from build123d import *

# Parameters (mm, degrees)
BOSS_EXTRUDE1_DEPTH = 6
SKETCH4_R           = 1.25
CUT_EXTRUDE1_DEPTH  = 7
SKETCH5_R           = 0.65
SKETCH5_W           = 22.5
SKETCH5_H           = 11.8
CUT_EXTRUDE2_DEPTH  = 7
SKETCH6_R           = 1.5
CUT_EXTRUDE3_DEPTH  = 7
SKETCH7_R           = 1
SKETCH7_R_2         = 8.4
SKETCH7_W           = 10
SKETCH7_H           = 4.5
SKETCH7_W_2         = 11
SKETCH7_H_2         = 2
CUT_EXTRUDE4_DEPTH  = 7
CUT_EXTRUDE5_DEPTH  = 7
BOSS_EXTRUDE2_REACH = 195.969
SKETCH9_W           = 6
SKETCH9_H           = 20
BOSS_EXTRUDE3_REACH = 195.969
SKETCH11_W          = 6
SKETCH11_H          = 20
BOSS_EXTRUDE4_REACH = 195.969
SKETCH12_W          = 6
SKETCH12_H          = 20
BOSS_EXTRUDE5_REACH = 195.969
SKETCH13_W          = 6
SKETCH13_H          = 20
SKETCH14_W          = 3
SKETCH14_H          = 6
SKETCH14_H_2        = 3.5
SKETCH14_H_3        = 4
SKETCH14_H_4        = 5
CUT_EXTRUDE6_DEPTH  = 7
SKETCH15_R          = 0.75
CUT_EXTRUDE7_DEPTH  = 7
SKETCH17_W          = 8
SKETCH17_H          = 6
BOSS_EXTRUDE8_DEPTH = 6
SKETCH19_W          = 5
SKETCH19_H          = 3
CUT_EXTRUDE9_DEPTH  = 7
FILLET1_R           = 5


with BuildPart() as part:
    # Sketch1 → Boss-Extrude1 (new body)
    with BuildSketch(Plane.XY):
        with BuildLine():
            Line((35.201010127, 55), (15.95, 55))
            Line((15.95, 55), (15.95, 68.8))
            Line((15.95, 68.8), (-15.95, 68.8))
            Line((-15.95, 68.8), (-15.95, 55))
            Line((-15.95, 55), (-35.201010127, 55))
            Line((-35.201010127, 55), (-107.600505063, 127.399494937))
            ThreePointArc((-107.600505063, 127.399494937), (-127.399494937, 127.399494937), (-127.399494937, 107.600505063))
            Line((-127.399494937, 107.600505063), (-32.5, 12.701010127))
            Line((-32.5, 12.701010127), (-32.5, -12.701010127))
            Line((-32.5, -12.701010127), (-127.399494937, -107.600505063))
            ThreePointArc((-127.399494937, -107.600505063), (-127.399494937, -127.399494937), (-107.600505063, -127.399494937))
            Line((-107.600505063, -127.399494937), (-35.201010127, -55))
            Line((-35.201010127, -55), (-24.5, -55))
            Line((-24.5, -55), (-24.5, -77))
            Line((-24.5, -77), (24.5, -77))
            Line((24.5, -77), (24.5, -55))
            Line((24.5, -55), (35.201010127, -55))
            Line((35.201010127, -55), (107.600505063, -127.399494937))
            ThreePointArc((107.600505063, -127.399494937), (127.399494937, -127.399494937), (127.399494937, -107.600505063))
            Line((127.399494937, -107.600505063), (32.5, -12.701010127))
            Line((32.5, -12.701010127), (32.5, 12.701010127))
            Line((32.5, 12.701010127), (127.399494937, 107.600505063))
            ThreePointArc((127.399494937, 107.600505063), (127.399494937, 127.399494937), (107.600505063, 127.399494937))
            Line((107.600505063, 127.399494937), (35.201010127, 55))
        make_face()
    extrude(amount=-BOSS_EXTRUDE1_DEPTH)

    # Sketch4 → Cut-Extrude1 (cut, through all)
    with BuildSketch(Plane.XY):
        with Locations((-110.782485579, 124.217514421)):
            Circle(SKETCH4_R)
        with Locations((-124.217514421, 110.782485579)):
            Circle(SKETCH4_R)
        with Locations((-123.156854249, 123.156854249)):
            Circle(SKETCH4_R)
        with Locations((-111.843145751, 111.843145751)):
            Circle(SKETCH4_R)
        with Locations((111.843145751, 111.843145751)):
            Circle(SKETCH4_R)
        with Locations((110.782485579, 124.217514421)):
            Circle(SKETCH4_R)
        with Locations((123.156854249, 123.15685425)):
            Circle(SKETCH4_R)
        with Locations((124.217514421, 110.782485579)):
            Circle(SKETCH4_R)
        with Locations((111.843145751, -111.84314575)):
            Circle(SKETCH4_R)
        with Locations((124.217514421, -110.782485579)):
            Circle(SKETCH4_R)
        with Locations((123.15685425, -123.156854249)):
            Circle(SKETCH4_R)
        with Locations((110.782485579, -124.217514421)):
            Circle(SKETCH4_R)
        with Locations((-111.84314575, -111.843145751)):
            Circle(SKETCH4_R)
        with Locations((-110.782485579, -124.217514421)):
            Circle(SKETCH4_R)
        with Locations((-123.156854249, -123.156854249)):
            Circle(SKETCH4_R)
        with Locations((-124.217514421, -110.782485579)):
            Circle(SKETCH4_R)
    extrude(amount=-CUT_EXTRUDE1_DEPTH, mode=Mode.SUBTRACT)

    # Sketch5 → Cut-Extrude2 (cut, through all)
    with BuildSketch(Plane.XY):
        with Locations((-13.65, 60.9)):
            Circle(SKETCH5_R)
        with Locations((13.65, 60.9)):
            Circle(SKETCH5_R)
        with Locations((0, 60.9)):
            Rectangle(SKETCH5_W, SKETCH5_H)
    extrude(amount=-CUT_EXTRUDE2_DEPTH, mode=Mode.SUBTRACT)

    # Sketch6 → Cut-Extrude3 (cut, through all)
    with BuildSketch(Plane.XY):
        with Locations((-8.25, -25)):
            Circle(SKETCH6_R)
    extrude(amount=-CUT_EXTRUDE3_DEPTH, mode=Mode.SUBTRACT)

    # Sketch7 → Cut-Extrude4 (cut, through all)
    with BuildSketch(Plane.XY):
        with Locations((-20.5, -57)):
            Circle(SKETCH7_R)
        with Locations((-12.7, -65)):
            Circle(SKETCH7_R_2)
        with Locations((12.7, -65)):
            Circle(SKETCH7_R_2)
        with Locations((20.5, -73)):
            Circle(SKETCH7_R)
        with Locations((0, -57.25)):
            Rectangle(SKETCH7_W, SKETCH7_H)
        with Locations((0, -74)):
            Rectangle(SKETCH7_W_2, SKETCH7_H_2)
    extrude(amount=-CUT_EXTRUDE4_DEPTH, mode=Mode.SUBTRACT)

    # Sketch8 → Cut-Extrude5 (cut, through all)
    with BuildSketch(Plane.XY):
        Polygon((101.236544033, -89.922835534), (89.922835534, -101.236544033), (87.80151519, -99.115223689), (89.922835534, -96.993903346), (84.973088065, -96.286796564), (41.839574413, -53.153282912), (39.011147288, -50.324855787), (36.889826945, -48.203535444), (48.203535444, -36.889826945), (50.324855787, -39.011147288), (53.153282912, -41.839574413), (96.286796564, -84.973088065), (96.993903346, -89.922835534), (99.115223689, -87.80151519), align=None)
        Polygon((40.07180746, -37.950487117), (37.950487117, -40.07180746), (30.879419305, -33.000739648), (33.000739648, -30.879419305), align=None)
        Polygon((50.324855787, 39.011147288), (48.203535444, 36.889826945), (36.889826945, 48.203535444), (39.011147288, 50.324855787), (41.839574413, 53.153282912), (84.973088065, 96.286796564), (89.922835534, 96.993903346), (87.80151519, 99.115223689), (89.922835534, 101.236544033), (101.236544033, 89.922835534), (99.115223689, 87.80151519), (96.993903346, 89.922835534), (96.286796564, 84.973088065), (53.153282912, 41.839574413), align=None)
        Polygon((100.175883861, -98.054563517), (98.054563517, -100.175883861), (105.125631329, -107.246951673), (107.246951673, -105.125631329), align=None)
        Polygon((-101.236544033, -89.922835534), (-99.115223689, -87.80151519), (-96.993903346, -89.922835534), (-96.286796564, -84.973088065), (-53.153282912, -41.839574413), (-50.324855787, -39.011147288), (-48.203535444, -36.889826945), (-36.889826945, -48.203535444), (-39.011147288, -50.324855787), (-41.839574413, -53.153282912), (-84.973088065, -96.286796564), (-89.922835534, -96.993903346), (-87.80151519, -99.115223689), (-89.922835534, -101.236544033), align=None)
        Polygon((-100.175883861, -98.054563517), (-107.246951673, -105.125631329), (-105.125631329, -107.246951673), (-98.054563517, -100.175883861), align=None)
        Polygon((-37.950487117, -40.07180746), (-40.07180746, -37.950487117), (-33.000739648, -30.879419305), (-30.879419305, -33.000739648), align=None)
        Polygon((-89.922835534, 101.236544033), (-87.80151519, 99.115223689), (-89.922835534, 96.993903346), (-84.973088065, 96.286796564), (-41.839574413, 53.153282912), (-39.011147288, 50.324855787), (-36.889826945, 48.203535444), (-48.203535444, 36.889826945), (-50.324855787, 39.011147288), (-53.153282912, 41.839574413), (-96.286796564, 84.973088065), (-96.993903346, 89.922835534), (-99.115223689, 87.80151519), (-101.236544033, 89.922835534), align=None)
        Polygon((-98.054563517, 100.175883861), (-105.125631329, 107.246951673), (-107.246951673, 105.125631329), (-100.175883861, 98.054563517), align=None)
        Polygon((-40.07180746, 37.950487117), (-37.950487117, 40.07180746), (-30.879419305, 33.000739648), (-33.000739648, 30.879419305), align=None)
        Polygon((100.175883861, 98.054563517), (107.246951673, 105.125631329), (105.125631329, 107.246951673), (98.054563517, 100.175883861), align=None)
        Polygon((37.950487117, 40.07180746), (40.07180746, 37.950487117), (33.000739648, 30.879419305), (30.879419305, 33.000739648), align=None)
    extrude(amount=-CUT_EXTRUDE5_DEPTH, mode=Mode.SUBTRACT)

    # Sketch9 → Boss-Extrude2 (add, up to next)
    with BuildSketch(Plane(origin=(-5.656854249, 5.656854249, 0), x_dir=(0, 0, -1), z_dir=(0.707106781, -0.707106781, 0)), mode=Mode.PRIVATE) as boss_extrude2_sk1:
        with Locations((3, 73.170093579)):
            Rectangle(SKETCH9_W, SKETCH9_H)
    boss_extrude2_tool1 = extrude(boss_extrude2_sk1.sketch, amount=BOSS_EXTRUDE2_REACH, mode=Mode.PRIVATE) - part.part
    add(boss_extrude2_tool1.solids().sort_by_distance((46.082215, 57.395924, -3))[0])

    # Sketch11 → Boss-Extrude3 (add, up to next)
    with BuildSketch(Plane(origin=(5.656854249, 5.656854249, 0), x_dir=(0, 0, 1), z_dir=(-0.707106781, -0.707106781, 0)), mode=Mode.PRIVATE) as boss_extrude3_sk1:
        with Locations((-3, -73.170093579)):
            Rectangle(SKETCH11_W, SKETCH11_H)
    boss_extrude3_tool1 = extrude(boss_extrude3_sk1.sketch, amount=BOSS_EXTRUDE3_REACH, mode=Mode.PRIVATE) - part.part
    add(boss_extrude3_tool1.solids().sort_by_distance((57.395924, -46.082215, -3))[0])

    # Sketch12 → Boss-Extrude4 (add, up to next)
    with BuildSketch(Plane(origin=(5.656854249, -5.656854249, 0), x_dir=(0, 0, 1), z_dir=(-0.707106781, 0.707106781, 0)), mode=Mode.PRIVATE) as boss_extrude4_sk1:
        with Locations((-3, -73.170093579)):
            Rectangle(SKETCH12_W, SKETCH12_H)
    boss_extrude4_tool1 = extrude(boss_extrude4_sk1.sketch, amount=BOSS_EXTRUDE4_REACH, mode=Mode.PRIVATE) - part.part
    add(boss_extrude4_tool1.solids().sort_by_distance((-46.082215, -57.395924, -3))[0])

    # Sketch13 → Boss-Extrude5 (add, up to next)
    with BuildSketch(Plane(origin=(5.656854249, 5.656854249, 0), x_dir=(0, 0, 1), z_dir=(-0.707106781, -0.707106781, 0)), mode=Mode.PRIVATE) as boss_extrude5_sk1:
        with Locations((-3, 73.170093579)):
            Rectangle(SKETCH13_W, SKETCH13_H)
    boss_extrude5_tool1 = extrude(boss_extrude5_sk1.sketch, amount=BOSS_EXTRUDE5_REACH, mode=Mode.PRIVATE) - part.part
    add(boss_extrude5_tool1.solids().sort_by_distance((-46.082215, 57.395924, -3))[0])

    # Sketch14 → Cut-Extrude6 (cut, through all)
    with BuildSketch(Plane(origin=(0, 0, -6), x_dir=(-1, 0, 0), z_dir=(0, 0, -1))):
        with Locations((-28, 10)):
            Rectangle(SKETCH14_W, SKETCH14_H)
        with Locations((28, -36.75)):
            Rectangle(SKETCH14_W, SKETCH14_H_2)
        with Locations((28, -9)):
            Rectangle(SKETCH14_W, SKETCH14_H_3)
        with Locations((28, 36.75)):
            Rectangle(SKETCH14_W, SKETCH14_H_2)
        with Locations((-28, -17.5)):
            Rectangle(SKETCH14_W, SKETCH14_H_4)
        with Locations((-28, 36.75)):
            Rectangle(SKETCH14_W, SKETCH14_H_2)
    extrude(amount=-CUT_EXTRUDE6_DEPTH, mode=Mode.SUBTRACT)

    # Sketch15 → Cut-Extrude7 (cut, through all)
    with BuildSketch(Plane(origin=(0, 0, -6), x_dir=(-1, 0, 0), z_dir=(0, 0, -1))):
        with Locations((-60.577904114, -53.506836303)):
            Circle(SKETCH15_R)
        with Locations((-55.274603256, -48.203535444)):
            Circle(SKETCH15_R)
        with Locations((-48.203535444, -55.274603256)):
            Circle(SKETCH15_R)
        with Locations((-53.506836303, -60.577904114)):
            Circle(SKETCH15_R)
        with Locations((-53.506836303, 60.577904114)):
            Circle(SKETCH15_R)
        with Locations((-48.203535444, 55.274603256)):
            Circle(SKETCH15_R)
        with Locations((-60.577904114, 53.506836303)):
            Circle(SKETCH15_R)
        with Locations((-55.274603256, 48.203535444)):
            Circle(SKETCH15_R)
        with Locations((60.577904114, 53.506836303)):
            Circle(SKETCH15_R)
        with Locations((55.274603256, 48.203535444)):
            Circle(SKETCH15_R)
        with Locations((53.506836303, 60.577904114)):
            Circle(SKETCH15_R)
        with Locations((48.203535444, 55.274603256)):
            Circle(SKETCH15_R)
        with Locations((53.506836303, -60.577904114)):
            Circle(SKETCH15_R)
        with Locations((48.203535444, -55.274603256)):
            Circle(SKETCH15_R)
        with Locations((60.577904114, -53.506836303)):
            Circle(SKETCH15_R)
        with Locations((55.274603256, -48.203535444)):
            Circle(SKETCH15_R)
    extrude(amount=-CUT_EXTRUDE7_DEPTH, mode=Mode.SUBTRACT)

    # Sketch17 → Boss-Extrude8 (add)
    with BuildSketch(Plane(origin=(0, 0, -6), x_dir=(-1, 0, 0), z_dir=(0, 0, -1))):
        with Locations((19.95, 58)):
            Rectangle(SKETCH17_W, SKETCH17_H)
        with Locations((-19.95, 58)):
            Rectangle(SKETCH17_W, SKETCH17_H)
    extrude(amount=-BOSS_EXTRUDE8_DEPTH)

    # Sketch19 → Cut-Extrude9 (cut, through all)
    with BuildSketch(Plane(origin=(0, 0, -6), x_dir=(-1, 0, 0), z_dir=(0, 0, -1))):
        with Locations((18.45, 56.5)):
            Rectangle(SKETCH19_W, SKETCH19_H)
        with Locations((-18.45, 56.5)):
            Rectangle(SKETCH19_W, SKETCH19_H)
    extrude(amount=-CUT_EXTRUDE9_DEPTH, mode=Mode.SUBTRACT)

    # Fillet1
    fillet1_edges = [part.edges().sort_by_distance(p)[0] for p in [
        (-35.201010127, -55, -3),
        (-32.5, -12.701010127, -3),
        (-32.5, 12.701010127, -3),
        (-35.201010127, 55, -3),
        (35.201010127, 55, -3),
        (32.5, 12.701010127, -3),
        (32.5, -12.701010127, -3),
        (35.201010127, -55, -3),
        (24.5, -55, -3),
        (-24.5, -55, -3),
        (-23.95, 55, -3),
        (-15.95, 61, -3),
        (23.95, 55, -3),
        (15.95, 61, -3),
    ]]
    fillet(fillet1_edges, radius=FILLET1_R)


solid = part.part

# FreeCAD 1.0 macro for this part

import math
import FreeCAD as App
import Part
import Sketcher

V = App.Vector
Q = App.Units.Quantity


def edges_at(feature, points):
    """Names of the edges that pass closest to the given points."""
    edges = feature.Shape.Edges
    near = lambda p: min(range(len(edges)), key=lambda i: edges[i].distToShape(Part.Vertex(*p))[0])
    return sorted({f"Edge{near(p) + 1}" for p in points})


def add_polygon(sketch, points):
    """Adds a closed chain of lines whose ends are joined by coincident constraints."""
    first, n = sketch.GeometryCount, len(points)
    for a, b in zip(points, points[1:] + points[:1]):
        sketch.addGeometry(Part.LineSegment(App.Vector(*a, 0), App.Vector(*b, 0)), False)
    for i in range(n):
        sketch.addConstraint(Sketcher.Constraint("Coincident", first + i, 2, first + (i + 1) % n, 1))

doc = App.newDocument("Part")
body = doc.addObject("PartDesign::Body", "Body")

# Sketch on XY plane
sketch1 = body.newObject("Sketcher::SketchObject", "Sketch")
sketch1.AttachmentSupport = (doc.getObject("XY_Plane"), [""])
sketch1.MapMode = "FlatFace"
sketch1.addGeometry([
    Part.LineSegment(V(35, 55, 0), V(16, 55, 0)),  # 0
    Part.LineSegment(V(16, 55, 0), V(16, 69, 0)),  # 1
    Part.LineSegment(V(16, 69, 0), V(-16, 69, 0)),  # 2
    Part.LineSegment(V(-16, 69, 0), V(-16, 55, 0)),  # 3
    Part.LineSegment(V(-16, 55, 0), V(-35, 55, 0)),  # 4
    Part.LineSegment(V(-35, 55, 0), V(-108, 127, 0)),  # 5
    Part.ArcOfCircle(Part.Circle(V(-118, 118, 0), V(0, 0, 1), 14), math.radians(45), math.radians(225)),  # 6
    Part.LineSegment(V(-127, 108, 0), V(-32, 13, 0)),  # 7
    Part.LineSegment(V(-32, 13, 0), V(-32, -13, 0)),  # 8
    Part.LineSegment(V(-32, -13, 0), V(-127, -108, 0)),  # 9
    Part.ArcOfCircle(Part.Circle(V(-118, -118, 0), V(0, 0, 1), 14), math.radians(135), math.radians(315)),  # 10
    Part.LineSegment(V(-108, -127, 0), V(-35, -55, 0)),  # 11
    Part.LineSegment(V(-35, -55, 0), V(-24, -55, 0)),  # 12
    Part.LineSegment(V(-24, -55, 0), V(-24, -77, 0)),  # 13
    Part.LineSegment(V(-24, -77, 0), V(24, -77, 0)),  # 14
    Part.LineSegment(V(24, -77, 0), V(24, -55, 0)),  # 15
    Part.LineSegment(V(24, -55, 0), V(35, -55, 0)),  # 16
    Part.LineSegment(V(35, -55, 0), V(108, -127, 0)),  # 17
    Part.ArcOfCircle(Part.Circle(V(118, -118, 0), V(0, 0, 1), 14), math.radians(-135), math.radians(45)),  # 18
    Part.LineSegment(V(127, -108, 0), V(32, -13, 0)),  # 19
    Part.LineSegment(V(32, -13, 0), V(32, 13, 0)),  # 20
    Part.LineSegment(V(32, 13, 0), V(127, 108, 0)),  # 21
    Part.ArcOfCircle(Part.Circle(V(118, 118, 0), V(0, 0, 1), 14), math.radians(-45), math.radians(135)),  # 22
    Part.LineSegment(V(108, 127, 0), V(35, 55, 0)),  # 23
], False)
sketch1.addConstraint([
    Sketcher.Constraint("Coincident", 0, 2, 1, 1),
    Sketcher.Constraint("Coincident", 1, 2, 2, 1),
    Sketcher.Constraint("Coincident", 2, 2, 3, 1),
    Sketcher.Constraint("Coincident", 3, 2, 4, 1),
    Sketcher.Constraint("Coincident", 4, 2, 5, 1),
    Sketcher.Constraint("Tangent", 5, 2, 6, 1),
    Sketcher.Constraint("Tangent", 6, 2, 7, 1),
    Sketcher.Constraint("Coincident", 7, 2, 8, 1),
    Sketcher.Constraint("Coincident", 8, 2, 9, 1),
    Sketcher.Constraint("Tangent", 9, 2, 10, 1),
    Sketcher.Constraint("Tangent", 10, 2, 11, 1),
    Sketcher.Constraint("Coincident", 11, 2, 12, 1),
    Sketcher.Constraint("Coincident", 12, 2, 13, 1),
    Sketcher.Constraint("Coincident", 13, 2, 14, 1),
    Sketcher.Constraint("Coincident", 14, 2, 15, 1),
    Sketcher.Constraint("Coincident", 15, 2, 16, 1),
    Sketcher.Constraint("Coincident", 16, 2, 17, 1),
    Sketcher.Constraint("Tangent", 17, 2, 18, 1),
    Sketcher.Constraint("Tangent", 18, 2, 19, 1),
    Sketcher.Constraint("Coincident", 19, 2, 20, 1),
    Sketcher.Constraint("Coincident", 20, 2, 21, 1),
    Sketcher.Constraint("Tangent", 21, 2, 22, 1),
    Sketcher.Constraint("Tangent", 22, 2, 23, 1),
    Sketcher.Constraint("Coincident", 23, 2, 0, 1),
    Sketcher.Constraint("Horizontal", 0),
    Sketcher.Constraint("Vertical", 1),
    Sketcher.Constraint("Horizontal", 2),
    Sketcher.Constraint("Vertical", 3),
    Sketcher.Constraint("Horizontal", 4),
    Sketcher.Constraint("Vertical", 8),
    Sketcher.Constraint("Horizontal", 12),
    Sketcher.Constraint("Vertical", 13),
    Sketcher.Constraint("Horizontal", 14),
    Sketcher.Constraint("Vertical", 15),
    Sketcher.Constraint("Horizontal", 16),
    Sketcher.Constraint("Vertical", 20),
    Sketcher.Constraint("Equal", 6, 10),
    Sketcher.Constraint("Equal", 10, 18),
    Sketcher.Constraint("Equal", 18, 22),
    Sketcher.Constraint("Symmetric", 6, 3, 18, 3, -1, 1),
    Sketcher.Constraint("Symmetric", 10, 3, 22, 3, -1, 1),
    Sketcher.Constraint("Symmetric", 4, 2, 16, 2, -1, 1),
    Sketcher.Constraint("Symmetric", 7, 2, 19, 2, -1, 1),
    Sketcher.Constraint("Symmetric", 11, 2, 23, 2, -1, 1),
    Sketcher.Constraint("Symmetric", 10, 3, 18, 3, -2),
    Sketcher.Constraint("Symmetric", 0, 2, 3, 2, -2),
    Sketcher.Constraint("Parallel", 5, 7),
    Sketcher.Constraint("Perpendicular", 7, 9),
    Sketcher.Constraint("Parallel", 9, 11),
    Sketcher.Constraint("Perpendicular", 19, 21),
    Sketcher.Constraint("Horizontal", 10, 2, 17, 2),
    Sketcher.Constraint("Equal", 12, 16),
    Sketcher.Constraint("Radius", 6, Q("14 mm")),
    Sketcher.Constraint("DistanceX", 14, 1, 14, 2, Q("49 mm")),
    Sketcher.Constraint("DistanceY", 13, 2, 13, 1, Q("22 mm")),
    Sketcher.Constraint("DistanceX", 2, 2, 2, 1, Q("31.9 mm")),
    Sketcher.Constraint("DistanceY", 1, 1, 1, 2, Q("13.8 mm")),
    Sketcher.Constraint("DistanceY", -1, 1, 0, 2, Q("55 mm")),
    Sketcher.Constraint("DistanceY", 10, 3, 6, 3, Q("235 mm")),
    Sketcher.Constraint("DistanceX", 10, 3, 18, 3, Q("235 mm")),
    Sketcher.Constraint("DistanceX", 8, 2, 12, 2, Q("8 mm")),
])
pad1 = body.newObject("PartDesign::Pad", "Pad")
pad1.Profile = sketch1
pad1.Length = 6
pad1.Reversed = True

# Sketch on XY plane
sketch2 = body.newObject("Sketcher::SketchObject", "Sketch001")
sketch2.AttachmentSupport = (doc.getObject("XY_Plane"), [""])
sketch2.MapMode = "FlatFace"
sketch2.addGeometry([
    Part.Circle(V(-110.8, 124.2, 0), V(0, 0, 1), 1.2),  # 0
    Part.Circle(V(-124.2, 110.8, 0), V(0, 0, 1), 1.2),  # 1
    Part.Circle(V(-123.2, 123.2, 0), V(0, 0, 1), 1.2),  # 2
    Part.Circle(V(-111.8, 111.8, 0), V(0, 0, 1), 1.2),  # 3
    Part.Circle(V(111.8, 111.8, 0), V(0, 0, 1), 1.2),  # 4
    Part.Circle(V(110.8, 124.2, 0), V(0, 0, 1), 1.2),  # 5
    Part.Circle(V(123.2, 123.2, 0), V(0, 0, 1), 1.2),  # 6
    Part.Circle(V(124.2, 110.8, 0), V(0, 0, 1), 1.2),  # 7
    Part.Circle(V(111.8, -111.8, 0), V(0, 0, 1), 1.2),  # 8
    Part.Circle(V(124.2, -110.8, 0), V(0, 0, 1), 1.2),  # 9
    Part.Circle(V(123.2, -123.2, 0), V(0, 0, 1), 1.2),  # 10
    Part.Circle(V(110.8, -124.2, 0), V(0, 0, 1), 1.2),  # 11
    Part.Circle(V(-111.8, -111.8, 0), V(0, 0, 1), 1.2),  # 12
    Part.Circle(V(-110.8, -124.2, 0), V(0, 0, 1), 1.2),  # 13
    Part.Circle(V(-123.2, -123.2, 0), V(0, 0, 1), 1.2),  # 14
    Part.Circle(V(-124.2, -110.8, 0), V(0, 0, 1), 1.2),  # 15
], False)
sketch2.addConstraint([
    Sketcher.Constraint("Equal", 0, 1),
    Sketcher.Constraint("Equal", 1, 2),
    Sketcher.Constraint("Equal", 2, 3),
    Sketcher.Constraint("Equal", 3, 4),
    Sketcher.Constraint("Equal", 4, 5),
    Sketcher.Constraint("Equal", 5, 6),
    Sketcher.Constraint("Equal", 6, 7),
    Sketcher.Constraint("Equal", 7, 8),
    Sketcher.Constraint("Equal", 8, 9),
    Sketcher.Constraint("Equal", 9, 10),
    Sketcher.Constraint("Equal", 10, 11),
    Sketcher.Constraint("Equal", 11, 12),
    Sketcher.Constraint("Equal", 12, 13),
    Sketcher.Constraint("Equal", 13, 14),
    Sketcher.Constraint("Equal", 14, 15),
    Sketcher.Constraint("Symmetric", 3, 3, 8, 3, -1, 1),
    Sketcher.Constraint("Symmetric", 1, 3, 9, 3, -1, 1),
    Sketcher.Constraint("Symmetric", 2, 3, 10, 3, -1, 1),
    Sketcher.Constraint("Symmetric", 0, 3, 11, 3, -1, 1),
    Sketcher.Constraint("Symmetric", 4, 3, 12, 3, -1, 1),
    Sketcher.Constraint("Symmetric", 5, 3, 13, 3, -1, 1),
    Sketcher.Constraint("Symmetric", 6, 3, 14, 3, -1, 1),
    Sketcher.Constraint("Symmetric", 7, 3, 15, 3, -1, 1),
    Sketcher.Constraint("Symmetric", 3, 3, 4, 3, -2),
    Sketcher.Constraint("Symmetric", 0, 3, 5, 3, -2),
    Sketcher.Constraint("Symmetric", 2, 3, 6, 3, -2),
    Sketcher.Constraint("Symmetric", 1, 3, 7, 3, -2),
    Sketcher.Constraint("Diameter", 0, Q("2.5 mm")),
    Sketcher.Constraint("DistanceX", 2, 3, 4, 3, Q("235 mm")),
    Sketcher.Constraint("DistanceX", 1, 3, 5, 3, Q("235 mm")),
    Sketcher.Constraint("DistanceY", 8, 3, 6, 3, Q("235 mm")),
    Sketcher.Constraint("DistanceY", 9, 3, 5, 3, Q("235 mm")),
    Sketcher.Constraint("DistanceX", 1, 3, 0, 3, Q("13.435029 mm")),
    Sketcher.Constraint("DistanceY", 1, 3, 0, 3, Q("13.435029 mm")),
    Sketcher.Constraint("DistanceX", 2, 3, 0, 3, Q("12.374369 mm")),
    Sketcher.Constraint("DistanceY", 2, 3, 0, 3, Q("1.06066 mm")),
])
pocket1 = body.newObject("PartDesign::Pocket", "Pocket")
pocket1.Profile = sketch2
pocket1.Type = "ThroughAll"

# Sketch on XY plane
sketch3 = body.newObject("Sketcher::SketchObject", "Sketch002")
sketch3.AttachmentSupport = (doc.getObject("XY_Plane"), [""])
sketch3.MapMode = "FlatFace"
sketch3.addGeometry(Part.Circle(V(-13.7, 60.9, 0), V(0, 0, 1), 0.7), False)  # 0
sketch3.addGeometry(Part.Circle(V(13.7, 60.9, 0), V(0, 0, 1), 0.7), False)  # 1
add_polygon(sketch3, [(-11.2, 66.8), (-11.2, 55), (11.2, 55), (11.2, 66.8)])  # lines 2-5
sketch3.addConstraint([
    Sketcher.Constraint("Vertical", 2),
    Sketcher.Constraint("Horizontal", 3),
    Sketcher.Constraint("Vertical", 4),
    Sketcher.Constraint("Horizontal", 5),
    Sketcher.Constraint("Equal", 0, 1),
    Sketcher.Constraint("Symmetric", 0, 3, 1, 3, -2),
    Sketcher.Constraint("Diameter", 0, Q("1.3 mm")),
    Sketcher.Constraint("DistanceX", 3, 1, 3, 2, Q("22.5 mm")),
    Sketcher.Constraint("DistanceY", 2, 2, 2, 1, Q("11.8 mm")),
    Sketcher.Constraint("DistanceY", -1, 1, 2, 2, Q("55 mm")),
    Sketcher.Constraint("DistanceY", -1, 1, 0, 3, Q("60.9 mm")),
    Sketcher.Constraint("DistanceX", 0, 3, 1, 3, Q("27.3 mm")),
    Sketcher.Constraint("DistanceX", 0, 3, 2, 2, Q("2.4 mm")),
])
pocket2 = body.newObject("PartDesign::Pocket", "Pocket001")
pocket2.Profile = sketch3
pocket2.Type = "ThroughAll"

# Sketch on XY plane
sketch4 = body.newObject("Sketcher::SketchObject", "Sketch003")
sketch4.AttachmentSupport = (doc.getObject("XY_Plane"), [""])
sketch4.MapMode = "FlatFace"
sketch4.addGeometry(Part.Circle(V(-8.2, -25, 0), V(0, 0, 1), 1.5), False)
sketch4.addConstraint([
    Sketcher.Constraint("Diameter", 0, Q("3 mm")),
    Sketcher.Constraint("DistanceY", 0, 3, -1, 1, Q("25 mm")),
    Sketcher.Constraint("DistanceX", 0, 3, -1, 1, Q("8.25 mm")),
])
pocket3 = body.newObject("PartDesign::Pocket", "Pocket002")
pocket3.Profile = sketch4
pocket3.Type = "ThroughAll"

# Sketch on XY plane
sketch5 = body.newObject("Sketcher::SketchObject", "Sketch004")
sketch5.AttachmentSupport = (doc.getObject("XY_Plane"), [""])
sketch5.MapMode = "FlatFace"
sketch5.addGeometry(Part.Circle(V(-20.5, -57, 0), V(0, 0, 1), 1), False)  # 0
sketch5.addGeometry(Part.Circle(V(-12.7, -65, 0), V(0, 0, 1), 8.4), False)  # 1
sketch5.addGeometry(Part.Circle(V(12.7, -65, 0), V(0, 0, 1), 8.4), False)  # 2
sketch5.addGeometry(Part.Circle(V(20.5, -73, 0), V(0, 0, 1), 1), False)  # 3
add_polygon(sketch5, [(-5, -55), (-5, -59.5), (5, -59.5), (5, -55)])  # lines 4-7
add_polygon(sketch5, [(-5.5, -73), (-5.5, -75), (5.5, -75), (5.5, -73)])  # lines 8-11
sketch5.addConstraint([
    Sketcher.Constraint("Vertical", 4),
    Sketcher.Constraint("Horizontal", 5),
    Sketcher.Constraint("Vertical", 6),
    Sketcher.Constraint("Horizontal", 7),
    Sketcher.Constraint("Vertical", 8),
    Sketcher.Constraint("Horizontal", 9),
    Sketcher.Constraint("Vertical", 10),
    Sketcher.Constraint("Horizontal", 11),
    Sketcher.Constraint("Equal", 1, 2),
    Sketcher.Constraint("Equal", 0, 3),
    Sketcher.Constraint("Symmetric", 1, 3, 2, 3, -2),
    Sketcher.Constraint("Horizontal", 3, 3, 10, 2),
    Sketcher.Constraint("Diameter", 0, Q("2 mm")),
    Sketcher.Constraint("Diameter", 1, Q("16.8 mm")),
    Sketcher.Constraint("DistanceX", 5, 1, 5, 2, Q("10 mm")),
    Sketcher.Constraint("DistanceX", 9, 1, 9, 2, Q("11 mm")),
    Sketcher.Constraint("DistanceY", 8, 2, 8, 1, Q("2 mm")),
    Sketcher.Constraint("DistanceY", 4, 2, 4, 1, Q("4.5 mm")),
    Sketcher.Constraint("DistanceY", 0, 3, -1, 1, Q("57 mm")),
    Sketcher.Constraint("DistanceY", 1, 3, -1, 1, Q("65 mm")),
    Sketcher.Constraint("DistanceY", 3, 3, -1, 1, Q("73 mm")),
    Sketcher.Constraint("DistanceX", 4, 2, -1, 1, Q("5 mm")),
    Sketcher.Constraint("DistanceY", 6, 2, -1, 1, Q("55 mm")),
    Sketcher.Constraint("DistanceX", 0, 3, 3, 3, Q("41 mm")),
    Sketcher.Constraint("DistanceX", 9, 2, 3, 3, Q("15 mm")),
    Sketcher.Constraint("DistanceX", 0, 3, -1, 1, Q("20.5 mm")),
    Sketcher.Constraint("DistanceX", 1, 3, -1, 1, Q("12.7 mm")),
])
pocket4 = body.newObject("PartDesign::Pocket", "Pocket003")
pocket4.Profile = sketch5
pocket4.Type = "ThroughAll"

# Sketch on XY plane
sketch6 = body.newObject("Sketcher::SketchObject", "Sketch005")
sketch6.AttachmentSupport = (doc.getObject("XY_Plane"), [""])
sketch6.MapMode = "FlatFace"
add_polygon(sketch6, [(89.9, -101.2), (101.2, -89.9), (99.1, -87.8), (97, -89.9), (96.3, -85), (48.2, -36.9), (36.9, -48.2), (85, -96.3), (89.9, -97), (87.8, -99.1)])  # lines 0-9
add_polygon(sketch6, [(38, -40.1), (40.1, -38), (33, -30.9), (30.9, -33)])  # lines 10-13
add_polygon(sketch6, [(48.2, 36.9), (96.3, 85), (97, 89.9), (99.1, 87.8), (101.2, 89.9), (89.9, 101.2), (87.8, 99.1), (89.9, 97), (85, 96.3), (36.9, 48.2)])  # lines 14-23
add_polygon(sketch6, [(100.2, -98.1), (98.1, -100.2), (105.1, -107.2), (107.2, -105.1)])  # lines 24-27
add_polygon(sketch6, [(-99.1, -87.8), (-101.2, -89.9), (-89.9, -101.2), (-87.8, -99.1), (-89.9, -97), (-85, -96.3), (-36.9, -48.2), (-48.2, -36.9), (-96.3, -85), (-97, -89.9)])  # lines 28-37
add_polygon(sketch6, [(-100.2, -98.1), (-107.2, -105.1), (-105.1, -107.2), (-98.1, -100.2)])  # lines 38-41
add_polygon(sketch6, [(-40.1, -38), (-38, -40.1), (-30.9, -33), (-33, -30.9)])  # lines 42-45
add_polygon(sketch6, [(-87.8, 99.1), (-89.9, 101.2), (-101.2, 89.9), (-99.1, 87.8), (-97, 89.9), (-96.3, 85), (-48.2, 36.9), (-36.9, 48.2), (-85, 96.3), (-89.9, 97)])  # lines 46-55
add_polygon(sketch6, [(-98.1, 100.2), (-105.1, 107.2), (-107.2, 105.1), (-100.2, 98.1)])  # lines 56-59
add_polygon(sketch6, [(-38, 40.1), (-40.1, 38), (-33, 30.9), (-30.9, 33)])  # lines 60-63
add_polygon(sketch6, [(100.2, 98.1), (107.2, 105.1), (105.1, 107.2), (98.1, 100.2)])  # lines 64-67
add_polygon(sketch6, [(40.1, 38), (38, 40.1), (30.9, 33), (33, 30.9)])  # lines 68-71
sketch6.addConstraint([
    Sketcher.Constraint("Symmetric", 17, 2, 28, 2, -1, 1),
    Sketcher.Constraint("Symmetric", 18, 2, 29, 2, -1, 1),
    Sketcher.Constraint("Symmetric", 19, 2, 30, 2, -1, 1),
    Sketcher.Constraint("Symmetric", 20, 2, 31, 2, -1, 1),
    Sketcher.Constraint("Symmetric", 21, 2, 32, 2, -1, 1),
    Sketcher.Constraint("Symmetric", 22, 2, 33, 2, -1, 1),
    Sketcher.Constraint("Symmetric", 23, 2, 34, 2, -1, 1),
    Sketcher.Constraint("Symmetric", 14, 2, 35, 2, -1, 1),
    Sketcher.Constraint("Symmetric", 15, 2, 36, 2, -1, 1),
    Sketcher.Constraint("Symmetric", 16, 2, 37, 2, -1, 1),
    Sketcher.Constraint("Symmetric", 9, 2, 46, 2, -1, 1),
    Sketcher.Constraint("Symmetric", 0, 2, 47, 2, -1, 1),
    Sketcher.Constraint("Symmetric", 1, 2, 48, 2, -1, 1),
    Sketcher.Constraint("Symmetric", 2, 2, 49, 2, -1, 1),
    Sketcher.Constraint("Symmetric", 3, 2, 50, 2, -1, 1),
    Sketcher.Constraint("Symmetric", 4, 2, 51, 2, -1, 1),
    Sketcher.Constraint("Symmetric", 5, 2, 52, 2, -1, 1),
    Sketcher.Constraint("Symmetric", 6, 2, 53, 2, -1, 1),
    Sketcher.Constraint("Symmetric", 7, 2, 54, 2, -1, 1),
    Sketcher.Constraint("Symmetric", 8, 2, 55, 2, -1, 1),
    Sketcher.Constraint("Symmetric", 25, 2, 56, 2, -1, 1),
    Sketcher.Constraint("Symmetric", 26, 2, 57, 2, -1, 1),
    Sketcher.Constraint("Symmetric", 27, 2, 58, 2, -1, 1),
    Sketcher.Constraint("Symmetric", 24, 2, 59, 2, -1, 1),
    Sketcher.Constraint("Symmetric", 10, 2, 60, 2, -1, 1),
    Sketcher.Constraint("Symmetric", 11, 2, 61, 2, -1, 1),
    Sketcher.Constraint("Symmetric", 12, 2, 62, 2, -1, 1),
    Sketcher.Constraint("Symmetric", 13, 2, 63, 2, -1, 1),
    Sketcher.Constraint("Symmetric", 38, 2, 64, 2, -1, 1),
    Sketcher.Constraint("Symmetric", 39, 2, 65, 2, -1, 1),
    Sketcher.Constraint("Symmetric", 40, 2, 66, 2, -1, 1),
    Sketcher.Constraint("Symmetric", 41, 2, 67, 2, -1, 1),
    Sketcher.Constraint("Symmetric", 42, 2, 68, 2, -1, 1),
    Sketcher.Constraint("Symmetric", 43, 2, 69, 2, -1, 1),
    Sketcher.Constraint("Symmetric", 44, 2, 70, 2, -1, 1),
    Sketcher.Constraint("Symmetric", 45, 2, 71, 2, -1, 1),
    Sketcher.Constraint("Symmetric", 0, 2, 28, 2, -2),
    Sketcher.Constraint("Symmetric", 9, 2, 29, 2, -2),
    Sketcher.Constraint("Symmetric", 8, 2, 30, 2, -2),
    Sketcher.Constraint("Symmetric", 7, 2, 31, 2, -2),
    Sketcher.Constraint("Symmetric", 6, 2, 32, 2, -2),
    Sketcher.Constraint("Symmetric", 5, 2, 33, 2, -2),
    Sketcher.Constraint("Symmetric", 4, 2, 34, 2, -2),
    Sketcher.Constraint("Symmetric", 3, 2, 35, 2, -2),
    Sketcher.Constraint("Symmetric", 2, 2, 36, 2, -2),
    Sketcher.Constraint("Symmetric", 1, 2, 37, 2, -2),
    Sketcher.Constraint("Symmetric", 26, 2, 38, 2, -2),
    Sketcher.Constraint("Symmetric", 25, 2, 39, 2, -2),
    Sketcher.Constraint("Symmetric", 24, 2, 40, 2, -2),
    Sketcher.Constraint("Symmetric", 27, 2, 41, 2, -2),
    Sketcher.Constraint("Symmetric", 13, 2, 42, 2, -2),
    Sketcher.Constraint("Symmetric", 12, 2, 43, 2, -2),
    Sketcher.Constraint("Symmetric", 11, 2, 44, 2, -2),
    Sketcher.Constraint("Symmetric", 10, 2, 45, 2, -2),
    Sketcher.Constraint("Perpendicular", 0, 1),
    Sketcher.Constraint("Perpendicular", 1, 2),
    Sketcher.Constraint("Perpendicular", 2, 4),
    Sketcher.Constraint("Perpendicular", 4, 5),
    Sketcher.Constraint("Perpendicular", 5, 6),
    Sketcher.Constraint("Perpendicular", 6, 8),
    Sketcher.Constraint("Perpendicular", 8, 9),
    Sketcher.Constraint("Perpendicular", 9, 10),
    Sketcher.Constraint("Perpendicular", 10, 11),
    Sketcher.Constraint("Perpendicular", 11, 12),
    Sketcher.Constraint("Perpendicular", 12, 13),
    Sketcher.Constraint("Perpendicular", 13, 14),
    Sketcher.Constraint("Perpendicular", 7, 15),
    Sketcher.Constraint("Perpendicular", 23, 24),
    Sketcher.Constraint("Perpendicular", 24, 25),
    Sketcher.Constraint("Perpendicular", 25, 26),
    Sketcher.Constraint("Perpendicular", 26, 27),
    Sketcher.Constraint("Horizontal", 0, 2, 2, 2),
    Sketcher.Constraint("Vertical", 7, 2, 9, 2),
    Sketcher.Constraint("Equal", 0, 5),
    Sketcher.Constraint("Equal", 4, 6),
    Sketcher.Constraint("Equal", 3, 7),
    Sketcher.Constraint("Equal", 9, 10),
    Sketcher.Constraint("Equal", 20, 24),
    Sketcher.Constraint("Equal", 13, 25),
    Sketcher.Constraint("Distance", 0, Q("16 mm")),
    Sketcher.Constraint("Distance", 1, Q("3 mm")),
    Sketcher.Constraint("Distance", 3, Q("5 mm")),
    Sketcher.Constraint("Distance", 4, Q("68 mm")),
    Sketcher.Constraint("Distance", 11, Q("10 mm")),
    Sketcher.Constraint("DistanceY", 3, 2, -1, 1, Q("84.973088 mm")),
    Sketcher.Constraint("DistanceX", -1, 1, 6, 2, Q("84.973088 mm")),
    Sketcher.Constraint("DistanceX", -1, 1, 11, 2, Q("33.00074 mm")),
    Sketcher.Constraint("DistanceY", 11, 2, -1, 1, Q("30.879419 mm")),
    Sketcher.Constraint("DistanceX", -1, 1, 25, 2, Q("105.125631 mm")),
    Sketcher.Constraint("DistanceY", 25, 2, -1, 1, Q("107.246952 mm")),
])
pocket5 = body.newObject("PartDesign::Pocket", "Pocket004")
pocket5.Profile = sketch6
pocket5.Type = "ThroughAll"

# Sketch on an angled plane
sketch7 = body.newObject("Sketcher::SketchObject", "Sketch006")
sketch7.Placement = App.Placement(V(-5.656854, 5.656854, 0), App.Rotation(V(0, 0, -1), V(0.707106781, 0.707106781, 0), V(0.707106781, -0.707106781, 0), "ZXY"))
add_polygon(sketch7, [(0, 83), (0, 63), (6, 63), (6, 83)])  # lines 0-3
sketch7.addConstraint([
    Sketcher.Constraint("Vertical", 0),
    Sketcher.Constraint("Horizontal", 1),
    Sketcher.Constraint("Vertical", 2),
    Sketcher.Constraint("Horizontal", 3),
    Sketcher.Constraint("PointOnObject", 0, 2, -2),
    Sketcher.Constraint("DistanceX", 1, 1, 1, 2, Q("6 mm")),
    Sketcher.Constraint("DistanceY", 0, 2, 0, 1, Q("20 mm")),
    Sketcher.Constraint("DistanceY", -1, 1, 0, 2, Q("63.170094 mm")),
])
pad2 = body.newObject("PartDesign::Pad", "Pad001")
pad2.Profile = sketch7
pad2.Type = "UpToFirst"

# Sketch on an angled plane
sketch8 = body.newObject("Sketcher::SketchObject", "Sketch007")
sketch8.Placement = App.Placement(V(5.656854, 5.656854, 0), App.Rotation(V(0, 0, 1), V(-0.707106781, 0.707106781, 0), V(-0.707106781, -0.707106781, 0), "ZXY"))
add_polygon(sketch8, [(-6, -63), (-6, -83), (0, -83), (0, -63)])  # lines 0-3
sketch8.addConstraint([
    Sketcher.Constraint("Vertical", 0),
    Sketcher.Constraint("Horizontal", 1),
    Sketcher.Constraint("Vertical", 2),
    Sketcher.Constraint("Horizontal", 3),
    Sketcher.Constraint("PointOnObject", 1, 2, -2),
    Sketcher.Constraint("DistanceX", 1, 1, 1, 2, Q("6 mm")),
    Sketcher.Constraint("DistanceY", 0, 2, 0, 1, Q("20 mm")),
    Sketcher.Constraint("DistanceY", 0, 2, -1, 1, Q("83.170094 mm")),
])
pad3 = body.newObject("PartDesign::Pad", "Pad002")
pad3.Profile = sketch8
pad3.Type = "UpToFirst"

# Sketch on an angled plane
sketch9 = body.newObject("Sketcher::SketchObject", "Sketch008")
sketch9.Placement = App.Placement(V(5.656854, -5.656854, 0), App.Rotation(V(0, 0, 1), V(0.707106781, 0.707106781, 0), V(-0.707106781, 0.707106781, 0), "ZXY"))
add_polygon(sketch9, [(-6, -63), (-6, -83), (0, -83), (0, -63)])  # lines 0-3
sketch9.addConstraint([
    Sketcher.Constraint("Vertical", 0),
    Sketcher.Constraint("Horizontal", 1),
    Sketcher.Constraint("Vertical", 2),
    Sketcher.Constraint("Horizontal", 3),
    Sketcher.Constraint("PointOnObject", 1, 2, -2),
    Sketcher.Constraint("DistanceX", 1, 1, 1, 2, Q("6 mm")),
    Sketcher.Constraint("DistanceY", 0, 2, 0, 1, Q("20 mm")),
    Sketcher.Constraint("DistanceY", 0, 2, -1, 1, Q("83.170094 mm")),
])
pad4 = body.newObject("PartDesign::Pad", "Pad003")
pad4.Profile = sketch9
pad4.Type = "UpToFirst"

# Sketch on an angled plane
sketch10 = body.newObject("Sketcher::SketchObject", "Sketch009")
sketch10.Placement = App.Placement(V(5.656854, 5.656854, 0), App.Rotation(V(0, 0, 1), V(-0.707106781, 0.707106781, 0), V(-0.707106781, -0.707106781, 0), "ZXY"))
add_polygon(sketch10, [(-6, 83), (-6, 63), (0, 63), (0, 83)])  # lines 0-3
sketch10.addConstraint([
    Sketcher.Constraint("Vertical", 0),
    Sketcher.Constraint("Horizontal", 1),
    Sketcher.Constraint("Vertical", 2),
    Sketcher.Constraint("Horizontal", 3),
    Sketcher.Constraint("PointOnObject", 1, 2, -2),
    Sketcher.Constraint("DistanceX", 1, 1, 1, 2, Q("6 mm")),
    Sketcher.Constraint("DistanceY", 0, 2, 0, 1, Q("20 mm")),
    Sketcher.Constraint("DistanceY", -1, 1, 0, 2, Q("63.170094 mm")),
])
pad5 = body.newObject("PartDesign::Pad", "Pad004")
pad5.Profile = sketch10
pad5.Type = "UpToFirst"

# Sketch on XY plane
sketch11 = body.newObject("Sketcher::SketchObject", "Sketch010")
sketch11.AttachmentSupport = (doc.getObject("XY_Plane"), [""])
sketch11.MapMode = "FlatFace"
sketch11.AttachmentOffset = App.Placement(V(0, 0, -6), App.Rotation())
add_polygon(sketch11, [(29.5, 13), (29.5, 7), (26.5, 7), (26.5, 13)])  # lines 0-3
add_polygon(sketch11, [(-26.5, -35), (-26.5, -38.5), (-29.5, -38.5), (-29.5, -35)])  # lines 4-7
add_polygon(sketch11, [(-26.5, -7), (-26.5, -11), (-29.5, -11), (-29.5, -7)])  # lines 8-11
add_polygon(sketch11, [(-26.5, 38.5), (-26.5, 35), (-29.5, 35), (-29.5, 38.5)])  # lines 12-15
add_polygon(sketch11, [(29.5, -15), (29.5, -20), (26.5, -20), (26.5, -15)])  # lines 16-19
add_polygon(sketch11, [(29.5, 38.5), (29.5, 35), (26.5, 35), (26.5, 38.5)])  # lines 20-23
sketch11.addConstraint([
    Sketcher.Constraint("Vertical", 0),
    Sketcher.Constraint("Horizontal", 1),
    Sketcher.Constraint("Vertical", 2),
    Sketcher.Constraint("Horizontal", 3),
    Sketcher.Constraint("Vertical", 4),
    Sketcher.Constraint("Horizontal", 5),
    Sketcher.Constraint("Vertical", 6),
    Sketcher.Constraint("Horizontal", 7),
    Sketcher.Constraint("Vertical", 8),
    Sketcher.Constraint("Horizontal", 9),
    Sketcher.Constraint("Vertical", 10),
    Sketcher.Constraint("Horizontal", 11),
    Sketcher.Constraint("Vertical", 12),
    Sketcher.Constraint("Horizontal", 13),
    Sketcher.Constraint("Vertical", 14),
    Sketcher.Constraint("Horizontal", 15),
    Sketcher.Constraint("Vertical", 16),
    Sketcher.Constraint("Horizontal", 17),
    Sketcher.Constraint("Vertical", 18),
    Sketcher.Constraint("Horizontal", 19),
    Sketcher.Constraint("Vertical", 20),
    Sketcher.Constraint("Horizontal", 21),
    Sketcher.Constraint("Vertical", 22),
    Sketcher.Constraint("Horizontal", 23),
    Sketcher.Constraint("Symmetric", 0, 2, 10, 2, -1, 1),
    Sketcher.Constraint("Symmetric", 6, 2, 20, 2, -1, 1),
    Sketcher.Constraint("Symmetric", 4, 2, 22, 2, -1, 1),
    Sketcher.Constraint("Symmetric", 13, 2, 20, 2, -2),
    Sketcher.Constraint("Symmetric", 15, 2, 22, 2, -2),
    Sketcher.Constraint("Vertical", 7, 2, 8, 2),
    Sketcher.Constraint("Vertical", 6, 2, 9, 2),
    Sketcher.Constraint("Vertical", 3, 2, 16, 2),
    Sketcher.Constraint("Vertical", 2, 2, 17, 2),
    Sketcher.Constraint("Vertical", 18, 2, 21, 2),
    Sketcher.Constraint("DistanceX", 1, 2, 1, 1, Q("3 mm")),
    Sketcher.Constraint("DistanceY", 0, 2, 0, 1, Q("6 mm")),
    Sketcher.Constraint("DistanceY", 8, 2, 8, 1, Q("4 mm")),
    Sketcher.Constraint("DistanceY", 16, 2, 16, 1, Q("5 mm")),
    Sketcher.Constraint("DistanceY", 4, 2, 4, 1, Q("3.5 mm")),
    Sketcher.Constraint("DistanceY", -1, 1, 0, 2, Q("7 mm")),
    Sketcher.Constraint("DistanceY", 6, 2, -1, 1, Q("35 mm")),
    Sketcher.Constraint("DistanceY", 16, 2, -1, 1, Q("20 mm")),
    Sketcher.Constraint("DistanceX", 4, 2, 1, 2, Q("53 mm")),
])
pocket6 = body.newObject("PartDesign::Pocket", "Pocket005")
pocket6.Profile = sketch11
pocket6.Type = "ThroughAll"
pocket6.Reversed = True

# Sketch on XY plane
sketch12 = body.newObject("Sketcher::SketchObject", "Sketch011")
sketch12.AttachmentSupport = (doc.getObject("XY_Plane"), [""])
sketch12.MapMode = "FlatFace"
sketch12.AttachmentOffset = App.Placement(V(0, 0, -6), App.Rotation())
sketch12.addGeometry([
    Part.Circle(V(60.6, -53.5, 0), V(0, 0, 1), 0.8),  # 0
    Part.Circle(V(55.3, -48.2, 0), V(0, 0, 1), 0.8),  # 1
    Part.Circle(V(48.2, -55.3, 0), V(0, 0, 1), 0.8),  # 2
    Part.Circle(V(53.5, -60.6, 0), V(0, 0, 1), 0.8),  # 3
    Part.Circle(V(53.5, 60.6, 0), V(0, 0, 1), 0.8),  # 4
    Part.Circle(V(48.2, 55.3, 0), V(0, 0, 1), 0.8),  # 5
    Part.Circle(V(60.6, 53.5, 0), V(0, 0, 1), 0.8),  # 6
    Part.Circle(V(55.3, 48.2, 0), V(0, 0, 1), 0.8),  # 7
    Part.Circle(V(-60.6, 53.5, 0), V(0, 0, 1), 0.8),  # 8
    Part.Circle(V(-55.3, 48.2, 0), V(0, 0, 1), 0.8),  # 9
    Part.Circle(V(-53.5, 60.6, 0), V(0, 0, 1), 0.8),  # 10
    Part.Circle(V(-48.2, 55.3, 0), V(0, 0, 1), 0.8),  # 11
    Part.Circle(V(-53.5, -60.6, 0), V(0, 0, 1), 0.8),  # 12
    Part.Circle(V(-48.2, -55.3, 0), V(0, 0, 1), 0.8),  # 13
    Part.Circle(V(-60.6, -53.5, 0), V(0, 0, 1), 0.8),  # 14
    Part.Circle(V(-55.3, -48.2, 0), V(0, 0, 1), 0.8),  # 15
], False)
sketch12.addConstraint([
    Sketcher.Constraint("Equal", 0, 1),
    Sketcher.Constraint("Equal", 1, 2),
    Sketcher.Constraint("Equal", 2, 3),
    Sketcher.Constraint("Equal", 3, 4),
    Sketcher.Constraint("Equal", 4, 5),
    Sketcher.Constraint("Equal", 5, 6),
    Sketcher.Constraint("Equal", 6, 7),
    Sketcher.Constraint("Equal", 7, 8),
    Sketcher.Constraint("Equal", 8, 9),
    Sketcher.Constraint("Equal", 9, 10),
    Sketcher.Constraint("Equal", 10, 11),
    Sketcher.Constraint("Equal", 11, 12),
    Sketcher.Constraint("Equal", 12, 13),
    Sketcher.Constraint("Equal", 13, 14),
    Sketcher.Constraint("Equal", 14, 15),
    Sketcher.Constraint("Symmetric", 0, 3, 8, 3, -1, 1),
    Sketcher.Constraint("Symmetric", 1, 3, 9, 3, -1, 1),
    Sketcher.Constraint("Symmetric", 3, 3, 10, 3, -1, 1),
    Sketcher.Constraint("Symmetric", 2, 3, 11, 3, -1, 1),
    Sketcher.Constraint("Symmetric", 4, 3, 12, 3, -1, 1),
    Sketcher.Constraint("Symmetric", 5, 3, 13, 3, -1, 1),
    Sketcher.Constraint("Symmetric", 6, 3, 14, 3, -1, 1),
    Sketcher.Constraint("Symmetric", 7, 3, 15, 3, -1, 1),
    Sketcher.Constraint("Symmetric", 6, 3, 8, 3, -2),
    Sketcher.Constraint("Symmetric", 7, 3, 9, 3, -2),
    Sketcher.Constraint("Symmetric", 4, 3, 10, 3, -2),
    Sketcher.Constraint("Symmetric", 5, 3, 11, 3, -2),
    Sketcher.Constraint("Diameter", 0, Q("1.5 mm")),
    Sketcher.Constraint("DistanceX", 1, 3, 0, 3, Q("5.303301 mm")),
    Sketcher.Constraint("DistanceY", 0, 3, 1, 3, Q("5.303301 mm")),
    Sketcher.Constraint("DistanceX", 2, 3, 3, 3, Q("5.303301 mm")),
    Sketcher.Constraint("DistanceY", 3, 3, 2, 3, Q("5.303301 mm")),
    Sketcher.Constraint("DistanceX", 2, 3, 0, 3, Q("12.374369 mm")),
    Sketcher.Constraint("DistanceY", 3, 3, 1, 3, Q("12.374369 mm")),
    Sketcher.Constraint("DistanceY", 1, 3, 4, 3, Q("108.78144 mm")),
    Sketcher.Constraint("DistanceX", 8, 3, 5, 3, Q("108.78144 mm")),
])
pocket7 = body.newObject("PartDesign::Pocket", "Pocket006")
pocket7.Profile = sketch12
pocket7.Type = "ThroughAll"
pocket7.Reversed = True

# Sketch on XY plane
sketch13 = body.newObject("Sketcher::SketchObject", "Sketch012")
sketch13.AttachmentSupport = (doc.getObject("XY_Plane"), [""])
sketch13.MapMode = "FlatFace"
sketch13.AttachmentOffset = App.Placement(V(0, 0, -6), App.Rotation())
add_polygon(sketch13, [(-16, 61), (-16, 55), (-24, 55), (-24, 61)])  # lines 0-3
add_polygon(sketch13, [(24, 61), (24, 55), (16, 55), (16, 61)])  # lines 4-7
sketch13.addConstraint([
    Sketcher.Constraint("Vertical", 0),
    Sketcher.Constraint("Horizontal", 1),
    Sketcher.Constraint("Vertical", 2),
    Sketcher.Constraint("Horizontal", 3),
    Sketcher.Constraint("Vertical", 4),
    Sketcher.Constraint("Horizontal", 5),
    Sketcher.Constraint("Vertical", 6),
    Sketcher.Constraint("Horizontal", 7),
    Sketcher.Constraint("Symmetric", 1, 2, 4, 2, -2),
    Sketcher.Constraint("Symmetric", 3, 2, 6, 2, -2),
    Sketcher.Constraint("DistanceX", 1, 2, 1, 1, Q("8 mm")),
    Sketcher.Constraint("DistanceY", 0, 2, 0, 1, Q("6 mm")),
    Sketcher.Constraint("DistanceY", -1, 1, 0, 2, Q("55 mm")),
    Sketcher.Constraint("DistanceX", 0, 2, 4, 2, Q("39.9 mm")),
])
pad6 = body.newObject("PartDesign::Pad", "Pad005")
pad6.Profile = sketch13
pad6.Length = 6

# Sketch on XY plane
sketch14 = body.newObject("Sketcher::SketchObject", "Sketch013")
sketch14.AttachmentSupport = (doc.getObject("XY_Plane"), [""])
sketch14.MapMode = "FlatFace"
sketch14.AttachmentOffset = App.Placement(V(0, 0, -6), App.Rotation())
add_polygon(sketch14, [(-15.9, 58), (-15.9, 55), (-20.9, 55), (-20.9, 58)])  # lines 0-3
add_polygon(sketch14, [(20.9, 58), (20.9, 55), (15.9, 55), (15.9, 58)])  # lines 4-7
sketch14.addConstraint([
    Sketcher.Constraint("Vertical", 0),
    Sketcher.Constraint("Horizontal", 1),
    Sketcher.Constraint("Vertical", 2),
    Sketcher.Constraint("Horizontal", 3),
    Sketcher.Constraint("Vertical", 4),
    Sketcher.Constraint("Horizontal", 5),
    Sketcher.Constraint("Vertical", 6),
    Sketcher.Constraint("Horizontal", 7),
    Sketcher.Constraint("Symmetric", 1, 2, 4, 2, -2),
    Sketcher.Constraint("Symmetric", 3, 2, 6, 2, -2),
    Sketcher.Constraint("DistanceX", 1, 2, 1, 1, Q("5 mm")),
    Sketcher.Constraint("DistanceY", 0, 2, 0, 1, Q("3 mm")),
    Sketcher.Constraint("DistanceY", -1, 1, 0, 2, Q("55 mm")),
    Sketcher.Constraint("DistanceX", 0, 2, 4, 2, Q("36.9 mm")),
])
pocket8 = body.newObject("PartDesign::Pocket", "Pocket007")
pocket8.Profile = sketch14
pocket8.Type = "ThroughAll"
pocket8.Reversed = True
doc.recompute()

fillet = body.newObject("PartDesign::Fillet", "Fillet")
fillet.Base = (pocket8, edges_at(pocket8, [
    (-35.201, -55, -3),
    (-32.5, -12.701, -3),
    (-32.5, 12.701, -3),
    (-35.201, 55, -3),
    (35.201, 55, -3),
    (32.5, 12.701, -3),
    (32.5, -12.701, -3),
    (35.201, -55, -3),
    (24.5, -55, -3),
    (-24.5, -55, -3),
    (-23.95, 55, -3),
    (-15.95, 61, -3),
    (23.95, 55, -3),
    (15.95, 61, -3),
]))
fillet.Radius = 5

doc.recompute()
